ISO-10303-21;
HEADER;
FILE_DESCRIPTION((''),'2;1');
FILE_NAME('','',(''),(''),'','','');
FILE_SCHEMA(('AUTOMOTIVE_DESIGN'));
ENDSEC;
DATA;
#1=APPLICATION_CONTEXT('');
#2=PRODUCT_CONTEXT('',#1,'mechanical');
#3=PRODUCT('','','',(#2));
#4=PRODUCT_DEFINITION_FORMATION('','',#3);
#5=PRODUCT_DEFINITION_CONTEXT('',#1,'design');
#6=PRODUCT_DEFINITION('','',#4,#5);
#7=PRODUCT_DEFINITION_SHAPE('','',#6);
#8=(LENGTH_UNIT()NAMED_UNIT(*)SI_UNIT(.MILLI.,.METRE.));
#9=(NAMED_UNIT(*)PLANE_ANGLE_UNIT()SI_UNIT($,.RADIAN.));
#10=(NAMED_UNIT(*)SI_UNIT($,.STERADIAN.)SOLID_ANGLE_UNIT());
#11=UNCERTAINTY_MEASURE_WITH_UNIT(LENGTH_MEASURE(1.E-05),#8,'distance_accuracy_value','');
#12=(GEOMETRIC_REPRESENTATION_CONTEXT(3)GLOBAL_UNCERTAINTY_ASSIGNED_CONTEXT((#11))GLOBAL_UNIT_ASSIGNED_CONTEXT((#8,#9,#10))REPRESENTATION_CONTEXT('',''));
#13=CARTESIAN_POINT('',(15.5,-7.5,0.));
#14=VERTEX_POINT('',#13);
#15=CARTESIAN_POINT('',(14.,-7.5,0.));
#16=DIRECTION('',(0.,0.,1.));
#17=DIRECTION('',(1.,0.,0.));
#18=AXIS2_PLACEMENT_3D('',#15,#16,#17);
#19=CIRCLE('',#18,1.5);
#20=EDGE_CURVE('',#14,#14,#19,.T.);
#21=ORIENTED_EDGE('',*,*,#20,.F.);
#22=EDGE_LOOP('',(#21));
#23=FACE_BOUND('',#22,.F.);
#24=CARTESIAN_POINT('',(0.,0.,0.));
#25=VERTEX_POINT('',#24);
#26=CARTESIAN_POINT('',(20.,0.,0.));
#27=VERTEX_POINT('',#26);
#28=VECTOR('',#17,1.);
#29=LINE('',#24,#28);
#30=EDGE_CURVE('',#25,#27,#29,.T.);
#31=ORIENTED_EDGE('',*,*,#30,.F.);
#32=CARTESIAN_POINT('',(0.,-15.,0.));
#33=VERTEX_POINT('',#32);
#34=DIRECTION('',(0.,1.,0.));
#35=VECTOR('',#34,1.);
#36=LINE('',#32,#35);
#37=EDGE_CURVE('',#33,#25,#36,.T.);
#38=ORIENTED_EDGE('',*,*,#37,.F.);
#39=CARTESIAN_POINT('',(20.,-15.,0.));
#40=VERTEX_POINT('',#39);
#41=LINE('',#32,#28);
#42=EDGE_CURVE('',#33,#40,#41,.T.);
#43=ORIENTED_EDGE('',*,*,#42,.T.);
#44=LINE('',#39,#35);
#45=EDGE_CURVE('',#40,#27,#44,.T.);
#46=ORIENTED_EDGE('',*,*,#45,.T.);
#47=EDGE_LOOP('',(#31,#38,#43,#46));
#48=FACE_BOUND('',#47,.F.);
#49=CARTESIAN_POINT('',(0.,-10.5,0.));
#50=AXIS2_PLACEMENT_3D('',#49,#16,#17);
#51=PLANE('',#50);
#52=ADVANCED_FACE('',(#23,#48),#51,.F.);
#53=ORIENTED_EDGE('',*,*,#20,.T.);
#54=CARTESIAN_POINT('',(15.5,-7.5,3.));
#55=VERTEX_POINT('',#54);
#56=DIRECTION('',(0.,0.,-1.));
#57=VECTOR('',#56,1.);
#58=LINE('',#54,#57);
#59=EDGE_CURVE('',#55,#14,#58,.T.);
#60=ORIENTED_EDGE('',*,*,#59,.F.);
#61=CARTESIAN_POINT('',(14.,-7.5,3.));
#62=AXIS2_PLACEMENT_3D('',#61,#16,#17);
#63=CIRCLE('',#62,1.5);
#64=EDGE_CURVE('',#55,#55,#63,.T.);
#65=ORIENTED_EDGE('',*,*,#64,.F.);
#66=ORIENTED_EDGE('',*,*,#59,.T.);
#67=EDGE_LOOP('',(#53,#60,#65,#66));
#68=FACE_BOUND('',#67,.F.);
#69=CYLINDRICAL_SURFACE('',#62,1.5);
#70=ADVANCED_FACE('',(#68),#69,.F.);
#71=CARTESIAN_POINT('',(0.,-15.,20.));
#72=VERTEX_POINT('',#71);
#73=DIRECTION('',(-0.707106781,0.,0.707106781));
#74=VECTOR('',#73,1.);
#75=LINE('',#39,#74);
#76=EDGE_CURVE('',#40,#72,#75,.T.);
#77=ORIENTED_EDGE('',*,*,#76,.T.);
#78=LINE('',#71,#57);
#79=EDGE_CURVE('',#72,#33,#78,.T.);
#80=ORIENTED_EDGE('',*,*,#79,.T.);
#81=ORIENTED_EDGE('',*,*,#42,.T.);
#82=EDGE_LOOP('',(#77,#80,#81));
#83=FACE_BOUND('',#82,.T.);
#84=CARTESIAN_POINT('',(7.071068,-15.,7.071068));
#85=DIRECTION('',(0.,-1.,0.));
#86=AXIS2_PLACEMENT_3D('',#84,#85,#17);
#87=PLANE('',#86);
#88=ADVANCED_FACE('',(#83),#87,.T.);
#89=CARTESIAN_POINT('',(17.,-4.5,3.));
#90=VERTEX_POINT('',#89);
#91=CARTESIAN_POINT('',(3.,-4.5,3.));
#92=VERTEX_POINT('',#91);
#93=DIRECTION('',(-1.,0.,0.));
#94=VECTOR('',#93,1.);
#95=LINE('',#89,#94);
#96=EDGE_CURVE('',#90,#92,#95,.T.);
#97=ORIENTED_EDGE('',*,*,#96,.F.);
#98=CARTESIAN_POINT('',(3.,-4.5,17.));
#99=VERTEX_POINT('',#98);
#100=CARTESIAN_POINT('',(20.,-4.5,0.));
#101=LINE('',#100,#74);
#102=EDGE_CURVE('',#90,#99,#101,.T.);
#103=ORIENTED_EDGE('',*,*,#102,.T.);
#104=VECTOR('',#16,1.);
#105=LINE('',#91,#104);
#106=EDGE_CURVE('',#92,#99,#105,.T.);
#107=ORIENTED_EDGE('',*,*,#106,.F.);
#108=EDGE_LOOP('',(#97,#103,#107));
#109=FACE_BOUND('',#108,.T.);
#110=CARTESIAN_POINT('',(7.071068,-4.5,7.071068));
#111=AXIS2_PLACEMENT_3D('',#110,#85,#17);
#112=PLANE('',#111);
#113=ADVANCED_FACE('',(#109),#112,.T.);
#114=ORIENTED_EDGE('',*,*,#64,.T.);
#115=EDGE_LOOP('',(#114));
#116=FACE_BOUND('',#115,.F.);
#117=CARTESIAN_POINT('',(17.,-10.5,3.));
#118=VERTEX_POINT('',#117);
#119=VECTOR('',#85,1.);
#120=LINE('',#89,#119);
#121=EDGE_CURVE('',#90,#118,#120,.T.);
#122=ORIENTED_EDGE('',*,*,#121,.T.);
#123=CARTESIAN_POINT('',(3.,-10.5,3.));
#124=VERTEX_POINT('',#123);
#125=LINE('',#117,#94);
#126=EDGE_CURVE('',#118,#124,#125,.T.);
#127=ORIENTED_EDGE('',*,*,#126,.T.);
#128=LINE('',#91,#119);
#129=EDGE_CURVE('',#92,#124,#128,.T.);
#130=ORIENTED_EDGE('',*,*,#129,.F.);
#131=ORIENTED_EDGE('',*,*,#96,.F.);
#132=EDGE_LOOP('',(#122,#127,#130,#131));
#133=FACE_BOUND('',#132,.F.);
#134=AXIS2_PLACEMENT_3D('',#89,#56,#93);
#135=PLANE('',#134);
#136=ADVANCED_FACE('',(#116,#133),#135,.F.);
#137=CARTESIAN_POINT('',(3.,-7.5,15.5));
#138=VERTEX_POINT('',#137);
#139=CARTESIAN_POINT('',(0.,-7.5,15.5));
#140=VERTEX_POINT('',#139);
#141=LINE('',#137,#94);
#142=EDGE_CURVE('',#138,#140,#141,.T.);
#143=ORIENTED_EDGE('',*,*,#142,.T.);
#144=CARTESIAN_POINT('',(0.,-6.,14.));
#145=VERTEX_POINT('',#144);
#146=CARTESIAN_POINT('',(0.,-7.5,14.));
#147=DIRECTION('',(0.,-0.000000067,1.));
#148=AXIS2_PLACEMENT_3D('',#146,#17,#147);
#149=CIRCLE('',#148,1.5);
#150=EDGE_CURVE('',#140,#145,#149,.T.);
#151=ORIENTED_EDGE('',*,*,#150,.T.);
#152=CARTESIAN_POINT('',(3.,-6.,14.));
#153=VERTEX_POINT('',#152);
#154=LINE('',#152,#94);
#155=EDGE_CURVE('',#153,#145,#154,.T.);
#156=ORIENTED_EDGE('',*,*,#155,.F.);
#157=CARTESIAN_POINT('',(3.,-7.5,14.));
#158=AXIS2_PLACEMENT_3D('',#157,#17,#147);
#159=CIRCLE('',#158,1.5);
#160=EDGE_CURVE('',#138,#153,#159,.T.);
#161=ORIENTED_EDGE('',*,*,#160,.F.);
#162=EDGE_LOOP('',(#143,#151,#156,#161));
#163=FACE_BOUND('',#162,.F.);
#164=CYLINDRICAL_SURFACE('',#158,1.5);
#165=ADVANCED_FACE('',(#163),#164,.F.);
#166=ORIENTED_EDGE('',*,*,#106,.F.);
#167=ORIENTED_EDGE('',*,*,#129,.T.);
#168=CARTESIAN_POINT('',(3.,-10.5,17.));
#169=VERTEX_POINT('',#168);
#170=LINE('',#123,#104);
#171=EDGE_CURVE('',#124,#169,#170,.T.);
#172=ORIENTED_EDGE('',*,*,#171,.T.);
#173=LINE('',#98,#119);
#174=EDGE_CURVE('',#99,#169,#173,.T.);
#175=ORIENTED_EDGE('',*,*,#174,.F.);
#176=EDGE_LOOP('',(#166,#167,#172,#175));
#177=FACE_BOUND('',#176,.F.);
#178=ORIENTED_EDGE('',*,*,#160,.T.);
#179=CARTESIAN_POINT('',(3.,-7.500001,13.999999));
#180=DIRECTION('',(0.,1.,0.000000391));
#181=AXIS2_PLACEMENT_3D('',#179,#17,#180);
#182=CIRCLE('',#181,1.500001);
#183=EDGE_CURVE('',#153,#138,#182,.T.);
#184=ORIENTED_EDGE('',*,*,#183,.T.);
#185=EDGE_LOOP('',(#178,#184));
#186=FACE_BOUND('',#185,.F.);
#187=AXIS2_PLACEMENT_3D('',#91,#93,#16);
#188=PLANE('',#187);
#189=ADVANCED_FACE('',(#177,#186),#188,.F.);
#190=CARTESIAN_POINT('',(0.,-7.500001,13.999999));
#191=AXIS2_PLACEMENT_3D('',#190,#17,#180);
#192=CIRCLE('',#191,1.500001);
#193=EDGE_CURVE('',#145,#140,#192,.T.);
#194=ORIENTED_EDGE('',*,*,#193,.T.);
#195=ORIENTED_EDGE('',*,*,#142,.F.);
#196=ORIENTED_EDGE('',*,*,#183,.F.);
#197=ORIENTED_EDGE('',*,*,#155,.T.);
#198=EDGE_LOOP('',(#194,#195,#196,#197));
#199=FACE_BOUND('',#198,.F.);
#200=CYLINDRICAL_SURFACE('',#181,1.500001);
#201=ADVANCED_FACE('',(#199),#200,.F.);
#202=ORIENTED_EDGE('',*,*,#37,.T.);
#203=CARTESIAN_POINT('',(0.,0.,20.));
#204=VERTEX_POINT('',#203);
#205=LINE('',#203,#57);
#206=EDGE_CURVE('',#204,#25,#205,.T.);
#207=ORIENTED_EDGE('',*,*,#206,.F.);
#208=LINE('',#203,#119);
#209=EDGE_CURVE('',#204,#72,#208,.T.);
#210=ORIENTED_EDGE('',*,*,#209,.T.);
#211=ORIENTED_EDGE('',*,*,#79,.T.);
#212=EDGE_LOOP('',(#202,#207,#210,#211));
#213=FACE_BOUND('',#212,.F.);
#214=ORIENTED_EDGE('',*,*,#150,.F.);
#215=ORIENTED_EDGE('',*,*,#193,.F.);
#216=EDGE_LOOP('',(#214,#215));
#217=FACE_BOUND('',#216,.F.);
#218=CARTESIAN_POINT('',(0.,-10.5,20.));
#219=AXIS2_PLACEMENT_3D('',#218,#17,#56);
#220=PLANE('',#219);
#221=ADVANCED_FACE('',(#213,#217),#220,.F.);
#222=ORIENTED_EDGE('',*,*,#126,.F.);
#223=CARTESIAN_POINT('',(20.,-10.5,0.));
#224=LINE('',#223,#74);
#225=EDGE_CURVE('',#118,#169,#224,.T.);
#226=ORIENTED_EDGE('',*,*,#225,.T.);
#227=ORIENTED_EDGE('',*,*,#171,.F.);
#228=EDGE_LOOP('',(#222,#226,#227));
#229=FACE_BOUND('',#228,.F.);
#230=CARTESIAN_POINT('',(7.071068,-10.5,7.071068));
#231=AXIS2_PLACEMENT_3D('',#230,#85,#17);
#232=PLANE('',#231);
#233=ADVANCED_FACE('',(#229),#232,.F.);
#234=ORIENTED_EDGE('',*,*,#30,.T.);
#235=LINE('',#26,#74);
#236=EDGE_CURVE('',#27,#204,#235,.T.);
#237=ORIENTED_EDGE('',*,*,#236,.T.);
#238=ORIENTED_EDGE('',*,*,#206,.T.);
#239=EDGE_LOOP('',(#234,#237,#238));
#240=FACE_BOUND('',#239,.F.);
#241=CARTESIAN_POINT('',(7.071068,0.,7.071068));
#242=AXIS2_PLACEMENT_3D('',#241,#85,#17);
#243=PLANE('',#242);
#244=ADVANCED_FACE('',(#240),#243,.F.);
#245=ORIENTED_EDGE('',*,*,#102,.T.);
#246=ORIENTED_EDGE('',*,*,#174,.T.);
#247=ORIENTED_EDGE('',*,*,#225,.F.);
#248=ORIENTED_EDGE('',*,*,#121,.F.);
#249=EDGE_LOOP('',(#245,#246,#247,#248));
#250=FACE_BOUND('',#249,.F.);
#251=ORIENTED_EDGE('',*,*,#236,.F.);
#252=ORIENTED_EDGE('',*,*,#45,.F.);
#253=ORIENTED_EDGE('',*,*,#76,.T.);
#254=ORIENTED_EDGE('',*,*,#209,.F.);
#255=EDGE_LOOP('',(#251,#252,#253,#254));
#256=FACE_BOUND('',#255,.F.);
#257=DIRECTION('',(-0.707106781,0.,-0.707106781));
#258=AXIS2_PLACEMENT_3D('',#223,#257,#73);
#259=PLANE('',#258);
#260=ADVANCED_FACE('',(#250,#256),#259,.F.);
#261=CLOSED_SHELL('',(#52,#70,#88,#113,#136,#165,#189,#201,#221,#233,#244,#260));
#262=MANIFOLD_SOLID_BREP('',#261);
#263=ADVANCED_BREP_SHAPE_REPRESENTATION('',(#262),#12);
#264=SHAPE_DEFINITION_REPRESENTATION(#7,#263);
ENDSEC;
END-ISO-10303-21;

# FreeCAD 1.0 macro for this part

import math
import FreeCAD as App
import Part
import Sketcher

V = App.Vector
Q = App.Units.Quantity

doc = App.newDocument("Part")
body = doc.addObject("PartDesign::Body", "Body")

# Sketch on XZ plane
sketch1 = body.newObject("Sketcher::SketchObject", "Sketch")
sketch1.AttachmentSupport = (doc.getObject("XZ_Plane"), [""])
sketch1.MapMode = "FlatFace"
sketch1.addGeometry([
    Part.LineSegment(V(0, 20, 0), V(0, 0, 0)),
    Part.LineSegment(V(0, 0, 0), V(20, 0, 0)),
    Part.LineSegment(V(20, 0, 0), V(0, 20, 0)),
], False)
sketch1.addConstraint([
    Sketcher.Constraint("Coincident", 0, 2, 1, 1),
    Sketcher.Constraint("Coincident", 1, 2, 2, 1),
    Sketcher.Constraint("Coincident", 2, 2, 0, 1),
    Sketcher.Constraint("Vertical", 0),
    Sketcher.Constraint("Horizontal", 1),
    Sketcher.Constraint("Coincident", 0, 2, -1, 1),
    Sketcher.Constraint("Equal", 1, 0),
    Sketcher.Constraint("DistanceX", 1, 1, 1, 2, Q("20 mm")),
])
pad1 = body.newObject("PartDesign::Pad", "Pad")
pad1.Profile = sketch1
pad1.Length = 4.5

# Sketch on XZ plane
sketch2 = body.newObject("Sketcher::SketchObject", "Sketch001")
sketch2.AttachmentSupport = (doc.getObject("XZ_Plane"), [""])
sketch2.MapMode = "FlatFace"
sketch2.AttachmentOffset = App.Placement(V(0, 0, 4.5), App.Rotation())
sketch2.addGeometry([
    Part.LineSegment(V(3, 3, 0), V(3, 17, 0)),  # 0
    Part.LineSegment(V(3, 17, 0), V(0, 20, 0)),  # 1
    Part.LineSegment(V(0, 20, 0), V(0, 0, 0)),  # 2
    Part.LineSegment(V(0, 0, 0), V(20, 0, 0)),  # 3
    Part.LineSegment(V(20, 0, 0), V(17, 3, 0)),  # 4
    Part.LineSegment(V(17, 3, 0), V(3, 3, 0)),  # 5
], False)
sketch2.addConstraint([
    Sketcher.Constraint("Coincident", 0, 2, 1, 1),
    Sketcher.Constraint("Coincident", 1, 2, 2, 1),
    Sketcher.Constraint("Coincident", 2, 2, 3, 1),
    Sketcher.Constraint("Coincident", 3, 2, 4, 1),
    Sketcher.Constraint("Coincident", 4, 2, 5, 1),
    Sketcher.Constraint("Coincident", 5, 2, 0, 1),
    Sketcher.Constraint("Vertical", 0),
    Sketcher.Constraint("Vertical", 2),
    Sketcher.Constraint("Horizontal", 3),
    Sketcher.Constraint("Horizontal", 5),
    Sketcher.Constraint("Coincident", 2, 2, -1, 1),
    Sketcher.Constraint("Parallel", 1, 4),
    Sketcher.Constraint("Equal", 5, 0),
    Sketcher.Constraint("Equal", 3, 2),
    Sketcher.Constraint("Equal", 1, 4),
    Sketcher.Constraint("DistanceX", 3, 1, 3, 2, Q("20 mm")),
    Sketcher.Constraint("DistanceX", 5, 2, 5, 1, Q("14 mm")),
])
pad2 = body.newObject("PartDesign::Pad", "Pad001")
pad2.Profile = sketch2
pad2.Length = 6

# Sketch on XZ plane
sketch3 = body.newObject("Sketcher::SketchObject", "Sketch002")
sketch3.AttachmentSupport = (doc.getObject("XZ_Plane"), [""])
sketch3.MapMode = "FlatFace"
sketch3.AttachmentOffset = App.Placement(V(0, 0, 10.5), App.Rotation())
sketch3.addGeometry([
    Part.LineSegment(V(20, 0, 0), V(0, 20, 0)),
    Part.LineSegment(V(0, 20, 0), V(0, 0, 0)),
    Part.LineSegment(V(0, 0, 0), V(20, 0, 0)),
], False)
sketch3.addConstraint([
    Sketcher.Constraint("Coincident", 0, 2, 1, 1),
    Sketcher.Constraint("Coincident", 1, 2, 2, 1),
    Sketcher.Constraint("Coincident", 2, 2, 0, 1),
    Sketcher.Constraint("Vertical", 1),
    Sketcher.Constraint("Horizontal", 2),
    Sketcher.Constraint("Coincident", 1, 2, -1, 1),
    Sketcher.Constraint("Equal", 2, 1),
    Sketcher.Constraint("DistanceX", 2, 1, 2, 2, Q("20 mm")),
])
pad3 = body.newObject("PartDesign::Pad", "Pad002")
pad3.Profile = sketch3
pad3.Length = 4.5

# Sketch on YZ plane
sketch4 = body.newObject("Sketcher::SketchObject", "Sketch003")
sketch4.AttachmentSupport = (doc.getObject("YZ_Plane"), [""])
sketch4.MapMode = "FlatFace"
sketch4.AttachmentOffset = App.Placement(V(0, 0, 3), App.Rotation())
sketch4.addGeometry([
    Part.ArcOfCircle(Part.Circle(V(-7.5, 14, 0), V(0, 0, 1), 1.5), math.radians(90), math.radians(360)),
    Part.ArcOfCircle(Part.Circle(V(-7.5, 14, 0), V(0, 0, 1), 1.5), math.radians(0), math.radians(90)),
], False)
sketch4.addConstraint([
    Sketcher.Constraint("Tangent", 0, 1, 1, 2),
    Sketcher.Constraint("Coincident", 1, 1, 0, 2),
    Sketcher.Constraint("Horizontal", 0, 3, 1, 1),
    Sketcher.Constraint("Vertical", 1, 3, 0, 1),
    Sketcher.Constraint("Radius", 0, Q("1.5 mm")),
    Sketcher.Constraint("DistanceY", -1, 1, 0, 3, Q("14 mm")),
    Sketcher.Constraint("DistanceX", 1, 1, -1, 1, Q("6 mm")),
])
pocket1 = body.newObject("PartDesign::Pocket", "Pocket")
pocket1.Profile = sketch4
pocket1.Type = "ThroughAll"

# Sketch on XY plane
sketch5 = body.newObject("Sketcher::SketchObject", "Sketch004")
sketch5.AttachmentSupport = (doc.getObject("XY_Plane"), [""])
sketch5.MapMode = "FlatFace"
sketch5.AttachmentOffset = App.Placement(V(0, 0, 3), App.Rotation())
sketch5.addGeometry(Part.Circle(V(14, -7.5, 0), V(0, 0, 1), 1.5), False)
sketch5.addConstraint([
    Sketcher.Constraint("Diameter", 0, Q("3 mm")),
    Sketcher.Constraint("DistanceX", -1, 1, 0, 3, Q("14 mm")),
    Sketcher.Constraint("DistanceY", 0, 3, -1, 1, Q("7.5 mm")),
])
pocket2 = body.newObject("PartDesign::Pocket", "Pocket001")
pocket2.Profile = sketch5
pocket2.Length = 25

doc.recompute()
